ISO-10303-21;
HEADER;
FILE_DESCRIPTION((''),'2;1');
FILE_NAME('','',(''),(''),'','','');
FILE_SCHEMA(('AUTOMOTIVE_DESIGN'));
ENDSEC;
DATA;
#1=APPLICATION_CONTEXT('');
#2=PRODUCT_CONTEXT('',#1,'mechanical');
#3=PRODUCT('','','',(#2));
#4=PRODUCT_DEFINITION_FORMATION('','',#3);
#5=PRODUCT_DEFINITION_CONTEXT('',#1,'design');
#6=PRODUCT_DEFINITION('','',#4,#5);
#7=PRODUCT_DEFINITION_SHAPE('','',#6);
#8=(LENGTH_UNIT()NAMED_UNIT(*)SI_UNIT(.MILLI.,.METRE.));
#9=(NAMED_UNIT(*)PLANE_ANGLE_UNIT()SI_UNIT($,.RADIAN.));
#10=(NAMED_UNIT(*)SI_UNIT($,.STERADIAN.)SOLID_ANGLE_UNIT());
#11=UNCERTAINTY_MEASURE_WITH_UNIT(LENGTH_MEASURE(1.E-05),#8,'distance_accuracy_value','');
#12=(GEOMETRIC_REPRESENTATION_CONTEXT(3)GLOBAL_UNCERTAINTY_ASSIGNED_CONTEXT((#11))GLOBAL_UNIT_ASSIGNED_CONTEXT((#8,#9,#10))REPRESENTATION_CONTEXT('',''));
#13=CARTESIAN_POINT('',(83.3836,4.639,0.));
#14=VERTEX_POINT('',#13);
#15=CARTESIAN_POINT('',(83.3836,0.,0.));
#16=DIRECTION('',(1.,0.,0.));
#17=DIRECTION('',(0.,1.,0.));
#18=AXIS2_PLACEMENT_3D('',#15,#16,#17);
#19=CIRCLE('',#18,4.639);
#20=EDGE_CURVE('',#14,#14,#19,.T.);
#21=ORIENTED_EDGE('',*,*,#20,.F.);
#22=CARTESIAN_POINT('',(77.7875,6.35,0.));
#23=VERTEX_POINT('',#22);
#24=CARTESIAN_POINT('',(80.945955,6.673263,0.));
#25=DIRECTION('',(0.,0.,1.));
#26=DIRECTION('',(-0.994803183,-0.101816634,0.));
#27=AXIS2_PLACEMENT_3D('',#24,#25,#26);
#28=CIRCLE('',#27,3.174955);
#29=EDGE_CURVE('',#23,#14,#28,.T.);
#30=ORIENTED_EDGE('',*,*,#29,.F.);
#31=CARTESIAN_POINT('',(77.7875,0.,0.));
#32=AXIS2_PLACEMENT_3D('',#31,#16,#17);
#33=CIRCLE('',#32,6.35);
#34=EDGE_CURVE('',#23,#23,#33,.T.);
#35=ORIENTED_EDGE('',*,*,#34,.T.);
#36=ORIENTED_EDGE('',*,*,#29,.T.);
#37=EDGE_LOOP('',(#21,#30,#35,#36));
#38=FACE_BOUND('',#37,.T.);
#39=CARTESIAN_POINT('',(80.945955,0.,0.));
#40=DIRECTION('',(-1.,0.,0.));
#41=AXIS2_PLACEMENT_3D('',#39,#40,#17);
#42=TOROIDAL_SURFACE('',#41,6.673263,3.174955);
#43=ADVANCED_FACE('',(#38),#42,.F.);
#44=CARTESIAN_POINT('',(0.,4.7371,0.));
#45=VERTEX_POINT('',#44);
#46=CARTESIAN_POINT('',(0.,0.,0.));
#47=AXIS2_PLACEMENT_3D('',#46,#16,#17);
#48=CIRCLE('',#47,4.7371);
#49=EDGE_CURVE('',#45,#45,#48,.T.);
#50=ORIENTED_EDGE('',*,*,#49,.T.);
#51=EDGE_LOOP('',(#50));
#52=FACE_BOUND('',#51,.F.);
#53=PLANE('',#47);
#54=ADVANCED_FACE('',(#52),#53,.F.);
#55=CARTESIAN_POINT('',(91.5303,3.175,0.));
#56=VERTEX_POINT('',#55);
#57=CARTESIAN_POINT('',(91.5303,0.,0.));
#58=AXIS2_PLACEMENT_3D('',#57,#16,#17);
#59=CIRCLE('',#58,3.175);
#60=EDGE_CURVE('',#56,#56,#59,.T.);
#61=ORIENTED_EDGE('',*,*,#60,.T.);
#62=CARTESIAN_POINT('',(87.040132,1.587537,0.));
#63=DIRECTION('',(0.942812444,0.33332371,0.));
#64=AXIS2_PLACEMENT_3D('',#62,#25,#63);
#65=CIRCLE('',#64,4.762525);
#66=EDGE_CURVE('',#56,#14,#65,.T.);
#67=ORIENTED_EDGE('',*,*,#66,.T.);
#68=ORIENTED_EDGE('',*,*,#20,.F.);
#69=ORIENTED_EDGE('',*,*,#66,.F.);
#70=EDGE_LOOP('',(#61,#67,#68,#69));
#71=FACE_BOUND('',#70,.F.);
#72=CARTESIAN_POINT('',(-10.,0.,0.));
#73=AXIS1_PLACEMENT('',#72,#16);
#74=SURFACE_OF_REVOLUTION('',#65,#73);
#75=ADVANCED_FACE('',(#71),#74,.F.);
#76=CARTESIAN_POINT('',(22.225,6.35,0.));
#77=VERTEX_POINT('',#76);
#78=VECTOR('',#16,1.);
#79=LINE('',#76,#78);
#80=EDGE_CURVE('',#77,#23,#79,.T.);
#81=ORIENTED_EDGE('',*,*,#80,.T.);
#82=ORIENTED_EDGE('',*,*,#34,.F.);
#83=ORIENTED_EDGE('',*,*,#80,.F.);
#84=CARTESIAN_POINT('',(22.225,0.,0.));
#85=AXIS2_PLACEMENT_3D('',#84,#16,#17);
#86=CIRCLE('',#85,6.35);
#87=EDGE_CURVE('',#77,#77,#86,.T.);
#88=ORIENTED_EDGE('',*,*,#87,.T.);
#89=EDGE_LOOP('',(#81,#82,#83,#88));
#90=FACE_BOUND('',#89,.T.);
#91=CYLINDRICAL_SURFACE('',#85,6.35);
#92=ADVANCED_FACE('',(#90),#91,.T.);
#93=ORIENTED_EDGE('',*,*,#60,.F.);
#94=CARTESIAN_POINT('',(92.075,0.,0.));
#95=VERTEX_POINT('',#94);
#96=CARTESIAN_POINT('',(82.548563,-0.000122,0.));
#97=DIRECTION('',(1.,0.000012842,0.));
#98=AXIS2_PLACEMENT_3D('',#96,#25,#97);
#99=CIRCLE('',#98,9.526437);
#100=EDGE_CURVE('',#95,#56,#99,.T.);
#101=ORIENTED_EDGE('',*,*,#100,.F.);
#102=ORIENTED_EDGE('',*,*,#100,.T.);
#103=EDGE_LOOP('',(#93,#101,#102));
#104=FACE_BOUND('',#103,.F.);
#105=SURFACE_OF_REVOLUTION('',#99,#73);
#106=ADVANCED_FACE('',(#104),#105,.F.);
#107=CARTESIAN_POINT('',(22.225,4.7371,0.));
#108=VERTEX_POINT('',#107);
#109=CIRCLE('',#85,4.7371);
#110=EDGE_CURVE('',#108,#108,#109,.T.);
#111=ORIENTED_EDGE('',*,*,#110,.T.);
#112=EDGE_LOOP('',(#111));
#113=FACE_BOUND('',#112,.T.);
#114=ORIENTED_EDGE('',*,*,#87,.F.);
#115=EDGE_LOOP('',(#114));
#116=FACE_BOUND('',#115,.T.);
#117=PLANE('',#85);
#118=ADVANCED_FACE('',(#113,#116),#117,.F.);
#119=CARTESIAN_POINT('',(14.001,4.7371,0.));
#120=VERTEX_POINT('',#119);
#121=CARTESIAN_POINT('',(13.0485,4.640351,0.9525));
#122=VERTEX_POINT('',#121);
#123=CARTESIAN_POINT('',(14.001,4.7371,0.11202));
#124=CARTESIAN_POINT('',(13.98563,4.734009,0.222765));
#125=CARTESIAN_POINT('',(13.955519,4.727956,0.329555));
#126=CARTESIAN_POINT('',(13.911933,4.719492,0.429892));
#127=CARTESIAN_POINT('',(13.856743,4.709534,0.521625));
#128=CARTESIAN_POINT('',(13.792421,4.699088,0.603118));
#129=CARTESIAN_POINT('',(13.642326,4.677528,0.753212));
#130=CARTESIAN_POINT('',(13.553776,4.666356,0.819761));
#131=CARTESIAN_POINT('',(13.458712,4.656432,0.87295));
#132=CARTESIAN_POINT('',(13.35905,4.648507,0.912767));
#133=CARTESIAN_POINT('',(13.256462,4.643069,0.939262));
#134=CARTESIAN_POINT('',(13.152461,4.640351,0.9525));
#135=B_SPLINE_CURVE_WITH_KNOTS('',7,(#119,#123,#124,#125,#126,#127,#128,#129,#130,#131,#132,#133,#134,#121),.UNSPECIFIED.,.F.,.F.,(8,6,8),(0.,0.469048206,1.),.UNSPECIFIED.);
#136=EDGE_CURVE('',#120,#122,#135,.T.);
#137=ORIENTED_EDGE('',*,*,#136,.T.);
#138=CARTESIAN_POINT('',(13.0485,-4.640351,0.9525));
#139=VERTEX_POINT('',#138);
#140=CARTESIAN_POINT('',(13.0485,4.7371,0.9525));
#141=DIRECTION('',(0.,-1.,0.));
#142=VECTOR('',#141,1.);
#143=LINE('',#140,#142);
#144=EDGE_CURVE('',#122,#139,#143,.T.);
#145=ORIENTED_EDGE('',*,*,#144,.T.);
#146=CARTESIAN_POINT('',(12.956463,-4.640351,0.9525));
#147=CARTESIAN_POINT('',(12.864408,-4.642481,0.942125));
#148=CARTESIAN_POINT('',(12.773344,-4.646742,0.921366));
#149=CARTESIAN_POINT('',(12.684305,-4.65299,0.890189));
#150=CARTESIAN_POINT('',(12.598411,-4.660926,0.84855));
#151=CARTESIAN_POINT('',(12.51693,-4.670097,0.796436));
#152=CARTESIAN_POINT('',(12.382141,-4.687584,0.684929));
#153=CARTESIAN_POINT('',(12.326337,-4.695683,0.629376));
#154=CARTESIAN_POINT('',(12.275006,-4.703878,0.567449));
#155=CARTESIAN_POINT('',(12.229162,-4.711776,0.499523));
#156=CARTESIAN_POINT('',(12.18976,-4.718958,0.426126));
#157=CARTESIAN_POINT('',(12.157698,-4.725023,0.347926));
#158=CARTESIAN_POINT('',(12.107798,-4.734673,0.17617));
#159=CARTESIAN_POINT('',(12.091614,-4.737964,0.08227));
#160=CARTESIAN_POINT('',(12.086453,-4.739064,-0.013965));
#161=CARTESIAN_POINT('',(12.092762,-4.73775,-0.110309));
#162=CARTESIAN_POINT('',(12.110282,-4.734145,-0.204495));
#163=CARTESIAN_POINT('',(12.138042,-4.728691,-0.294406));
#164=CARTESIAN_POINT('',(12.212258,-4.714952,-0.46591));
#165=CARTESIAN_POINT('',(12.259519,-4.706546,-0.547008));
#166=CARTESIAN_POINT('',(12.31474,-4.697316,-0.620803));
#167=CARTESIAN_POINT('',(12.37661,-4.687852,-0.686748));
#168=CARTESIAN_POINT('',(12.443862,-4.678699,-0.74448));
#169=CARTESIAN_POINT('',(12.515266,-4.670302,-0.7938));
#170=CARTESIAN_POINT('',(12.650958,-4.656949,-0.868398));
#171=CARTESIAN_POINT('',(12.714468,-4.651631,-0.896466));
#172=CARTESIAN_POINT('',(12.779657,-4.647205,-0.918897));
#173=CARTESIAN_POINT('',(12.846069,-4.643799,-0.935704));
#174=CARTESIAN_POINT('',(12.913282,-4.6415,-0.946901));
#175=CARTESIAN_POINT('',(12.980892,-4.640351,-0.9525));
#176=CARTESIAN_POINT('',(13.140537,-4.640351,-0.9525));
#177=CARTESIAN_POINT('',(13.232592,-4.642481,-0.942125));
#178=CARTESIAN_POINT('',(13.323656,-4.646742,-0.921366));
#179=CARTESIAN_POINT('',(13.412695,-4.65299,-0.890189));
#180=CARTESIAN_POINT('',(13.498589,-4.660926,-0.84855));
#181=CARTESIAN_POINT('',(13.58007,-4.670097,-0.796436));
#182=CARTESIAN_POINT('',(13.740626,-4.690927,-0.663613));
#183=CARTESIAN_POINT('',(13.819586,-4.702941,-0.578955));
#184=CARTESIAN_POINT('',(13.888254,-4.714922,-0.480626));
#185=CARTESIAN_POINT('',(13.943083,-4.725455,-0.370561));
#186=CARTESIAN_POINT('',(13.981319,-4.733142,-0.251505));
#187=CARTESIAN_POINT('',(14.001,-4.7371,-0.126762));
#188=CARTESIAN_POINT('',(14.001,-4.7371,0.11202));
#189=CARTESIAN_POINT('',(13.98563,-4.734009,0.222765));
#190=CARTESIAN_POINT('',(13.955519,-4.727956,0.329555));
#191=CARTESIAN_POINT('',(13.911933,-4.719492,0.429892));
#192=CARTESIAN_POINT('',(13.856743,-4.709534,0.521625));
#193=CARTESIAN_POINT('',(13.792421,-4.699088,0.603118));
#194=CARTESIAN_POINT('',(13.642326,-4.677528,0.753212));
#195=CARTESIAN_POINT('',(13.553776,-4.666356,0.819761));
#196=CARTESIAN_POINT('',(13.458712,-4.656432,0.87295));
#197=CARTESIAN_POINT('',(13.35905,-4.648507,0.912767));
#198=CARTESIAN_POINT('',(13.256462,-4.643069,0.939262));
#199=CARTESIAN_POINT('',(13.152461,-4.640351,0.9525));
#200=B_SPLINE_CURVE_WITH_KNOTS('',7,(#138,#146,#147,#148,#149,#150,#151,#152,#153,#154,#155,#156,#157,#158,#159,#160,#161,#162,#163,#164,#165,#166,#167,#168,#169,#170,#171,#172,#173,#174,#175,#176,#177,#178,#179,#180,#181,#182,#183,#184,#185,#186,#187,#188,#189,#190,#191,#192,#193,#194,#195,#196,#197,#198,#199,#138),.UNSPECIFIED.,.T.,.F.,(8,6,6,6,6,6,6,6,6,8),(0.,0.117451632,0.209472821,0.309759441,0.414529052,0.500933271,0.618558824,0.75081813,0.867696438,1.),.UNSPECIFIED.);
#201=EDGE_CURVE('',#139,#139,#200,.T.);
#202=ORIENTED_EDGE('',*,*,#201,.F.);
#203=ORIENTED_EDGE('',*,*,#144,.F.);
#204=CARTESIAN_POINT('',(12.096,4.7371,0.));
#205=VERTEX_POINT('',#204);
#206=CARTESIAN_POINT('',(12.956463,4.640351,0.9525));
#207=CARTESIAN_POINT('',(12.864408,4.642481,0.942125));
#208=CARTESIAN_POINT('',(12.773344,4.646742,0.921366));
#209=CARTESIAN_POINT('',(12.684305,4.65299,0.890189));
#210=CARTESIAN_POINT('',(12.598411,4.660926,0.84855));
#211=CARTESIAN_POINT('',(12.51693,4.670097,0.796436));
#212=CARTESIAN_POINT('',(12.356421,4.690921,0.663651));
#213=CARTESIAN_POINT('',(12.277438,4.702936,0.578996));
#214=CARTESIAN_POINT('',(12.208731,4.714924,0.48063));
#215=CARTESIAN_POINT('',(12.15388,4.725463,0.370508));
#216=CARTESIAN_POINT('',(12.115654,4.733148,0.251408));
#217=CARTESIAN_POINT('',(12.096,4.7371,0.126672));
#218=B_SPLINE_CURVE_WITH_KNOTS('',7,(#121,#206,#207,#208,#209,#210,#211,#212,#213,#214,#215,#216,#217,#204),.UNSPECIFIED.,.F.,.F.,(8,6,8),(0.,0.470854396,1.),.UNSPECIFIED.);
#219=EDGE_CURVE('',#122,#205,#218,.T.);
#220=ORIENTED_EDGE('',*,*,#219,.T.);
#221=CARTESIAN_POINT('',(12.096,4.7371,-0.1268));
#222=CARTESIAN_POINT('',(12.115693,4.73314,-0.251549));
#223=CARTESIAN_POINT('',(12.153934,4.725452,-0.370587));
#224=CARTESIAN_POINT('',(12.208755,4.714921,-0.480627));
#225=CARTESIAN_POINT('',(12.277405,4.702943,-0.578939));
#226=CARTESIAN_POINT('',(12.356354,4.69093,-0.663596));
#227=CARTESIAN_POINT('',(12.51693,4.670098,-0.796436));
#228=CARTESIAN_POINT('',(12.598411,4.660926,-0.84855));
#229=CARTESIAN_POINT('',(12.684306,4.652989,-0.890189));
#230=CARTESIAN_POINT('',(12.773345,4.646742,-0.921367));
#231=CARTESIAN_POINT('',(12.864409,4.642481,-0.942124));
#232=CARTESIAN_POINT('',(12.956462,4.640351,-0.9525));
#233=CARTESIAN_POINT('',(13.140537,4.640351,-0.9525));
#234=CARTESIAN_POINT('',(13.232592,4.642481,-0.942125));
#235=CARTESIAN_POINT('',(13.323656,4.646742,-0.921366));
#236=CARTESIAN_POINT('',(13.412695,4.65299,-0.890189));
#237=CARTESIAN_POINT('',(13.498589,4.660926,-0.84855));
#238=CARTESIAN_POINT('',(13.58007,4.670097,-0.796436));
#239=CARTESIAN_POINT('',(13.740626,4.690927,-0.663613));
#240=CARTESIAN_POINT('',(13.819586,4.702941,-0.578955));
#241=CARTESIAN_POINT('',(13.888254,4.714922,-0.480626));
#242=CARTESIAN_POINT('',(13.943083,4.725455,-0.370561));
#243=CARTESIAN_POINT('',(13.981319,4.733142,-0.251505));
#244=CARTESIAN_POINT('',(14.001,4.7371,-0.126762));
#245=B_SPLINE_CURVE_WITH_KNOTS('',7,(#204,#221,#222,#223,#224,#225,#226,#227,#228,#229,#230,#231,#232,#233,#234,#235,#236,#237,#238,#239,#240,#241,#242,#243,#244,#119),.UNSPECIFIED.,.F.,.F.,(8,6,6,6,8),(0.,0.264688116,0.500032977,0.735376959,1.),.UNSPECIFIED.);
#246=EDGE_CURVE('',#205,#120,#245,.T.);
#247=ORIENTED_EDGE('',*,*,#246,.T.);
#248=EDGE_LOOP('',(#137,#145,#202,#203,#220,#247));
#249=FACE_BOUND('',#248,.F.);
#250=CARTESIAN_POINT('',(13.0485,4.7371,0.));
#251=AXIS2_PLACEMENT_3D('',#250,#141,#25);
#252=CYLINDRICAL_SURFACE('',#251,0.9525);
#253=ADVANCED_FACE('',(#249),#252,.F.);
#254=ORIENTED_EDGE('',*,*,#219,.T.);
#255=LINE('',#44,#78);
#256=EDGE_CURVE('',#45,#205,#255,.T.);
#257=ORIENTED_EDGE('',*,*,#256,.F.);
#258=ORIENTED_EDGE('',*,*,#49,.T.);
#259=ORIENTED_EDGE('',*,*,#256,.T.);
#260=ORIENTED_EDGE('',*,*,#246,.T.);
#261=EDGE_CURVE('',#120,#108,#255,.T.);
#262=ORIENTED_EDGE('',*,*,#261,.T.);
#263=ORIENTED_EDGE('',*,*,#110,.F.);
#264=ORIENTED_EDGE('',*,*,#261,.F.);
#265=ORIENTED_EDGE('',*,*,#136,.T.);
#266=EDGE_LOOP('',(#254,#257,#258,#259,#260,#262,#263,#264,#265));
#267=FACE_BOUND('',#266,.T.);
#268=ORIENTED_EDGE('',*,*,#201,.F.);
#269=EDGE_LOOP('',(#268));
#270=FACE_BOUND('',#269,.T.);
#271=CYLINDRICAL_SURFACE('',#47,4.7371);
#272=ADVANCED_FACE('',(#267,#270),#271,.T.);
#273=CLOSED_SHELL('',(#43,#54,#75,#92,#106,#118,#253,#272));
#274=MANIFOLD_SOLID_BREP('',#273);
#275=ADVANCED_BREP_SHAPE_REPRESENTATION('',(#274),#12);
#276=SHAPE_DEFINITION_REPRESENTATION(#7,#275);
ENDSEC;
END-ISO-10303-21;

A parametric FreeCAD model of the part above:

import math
import FreeCAD as App
import Part
import Sketcher
Q = App.Units.Quantity

doc = App.newDocument("Part")
body = doc.addObject("PartDesign::Body", "Body")

sketch1 = body.newObject("Sketcher::SketchObject", "Sketch")
sketch1.AttachmentSupport = (doc.getObject("XY_Plane"), [""])
sketch1.MapMode = "FlatFace"
sketch1.addGeometry([
    Part.LineSegment(App.Vector(22.2, 4.7, 0), App.Vector(0, 4.7, 0)),
    Part.LineSegment(App.Vector(0, 4.7, 0), App.Vector(0, 0, 0)),
    Part.LineSegment(App.Vector(0, 0, 0), App.Vector(92.1, 0, 0)),
    Part.ArcOfCircle(Part.Circle(App.Vector(82.5, 0, 0), App.Vector(0, 0, 1), 9.5), math.radians(0), math.radians(19.47)),
    Part.ArcOfCircle(Part.Circle(App.Vector(87, 1.6, 0), App.Vector(0, 0, 1), 4.8), math.radians(19), math.radians(140)),
    Part.ArcOfCircle(Part.Circle(App.Vector(80.9, 6.7, 0), App.Vector(0, 0, 1), 3.2), math.radians(-174), math.radians(-40)),
    Part.LineSegment(App.Vector(77.8, 6.3, 0), App.Vector(22.2, 6.3, 0)),
    Part.LineSegment(App.Vector(22.2, 6.3, 0), App.Vector(22.2, 4.7, 0)),
], False)
sketch1.addConstraint([
    Sketcher.Constraint("Coincident", 0, 2, 1, 1),
    Sketcher.Constraint("Coincident", 1, 2, 2, 1),
    Sketcher.Constraint("Coincident", 2, 2, 3, 1),
    Sketcher.Constraint("Tangent", 3, 2, 4, 1),
    Sketcher.Constraint("Tangent", 4, 2, 5, 2),
    Sketcher.Constraint("Coincident", 5, 1, 6, 1),
    Sketcher.Constraint("Coincident", 6, 2, 7, 1),
    Sketcher.Constraint("Coincident", 7, 2, 0, 1),
    Sketcher.Constraint("Horizontal", 0),
    Sketcher.Constraint("Vertical", 1),
    Sketcher.Constraint("Horizontal", 2),
    Sketcher.Constraint("Horizontal", 6),
    Sketcher.Constraint("Vertical", 7),
    Sketcher.Constraint("Coincident", 1, 2, -1, 1),
    Sketcher.Constraint("PointOnObject", 3, 3, -1),
    Sketcher.Constraint("Radius", 4, Q("0.1875 in")),
    Sketcher.Constraint("Radius", 5, Q("0.125 in")),
    Sketcher.Constraint("DistanceX", 0, 2, 0, 1, Q("0.875 in")),
    Sketcher.Constraint("DistanceX", 2, 1, 2, 2, Q("3.625 in")),
    Sketcher.Constraint("DistanceX", 6, 2, 6, 1, Q("2.1875 in")),
    Sketcher.Constraint("DistanceY", -1, 1, 3, 2, Q("0.125 in")),
    Sketcher.Constraint("DistanceY", 4, 3, 5, 1, Q("0.1875 in")),
    Sketcher.Constraint("DistanceY", 3, 2, 5, 1, Q("0.125 in")),
    Sketcher.Constraint("DistanceY", 1, 2, 1, 1, Q("0.1865 in")),
])
revolution = body.newObject("PartDesign::Revolution", "Revolution")
revolution.Profile = sketch1
revolution.ReferenceAxis = (sketch1, ["H_Axis"])
revolution.Angle = 360

sketch2 = body.newObject("Sketcher::SketchObject", "Sketch001")
sketch2.AttachmentSupport = (doc.getObject("XZ_Plane"), [""])
sketch2.MapMode = "FlatFace"
sketch2.AttachmentOffset = App.Placement(App.Vector(0, 0, -0.1865 * 25.4), App.Rotation())
sketch2.addGeometry(Part.Circle(App.Vector(13, 0, 0), App.Vector(0, 0, 1), 1), False)
sketch2.addConstraint([
    Sketcher.Constraint("PointOnObject", 0, 3, -1),
    Sketcher.Constraint("Diameter", 0, Q("0.075 in")),
    Sketcher.Constraint("DistanceX", -1, 1, 0, 3, Q("13.0485 mm")),
])
doc.recompute()
hole = body.newObject("PartDesign::Hole", "Hole")
hole.Profile = sketch2
hole.ThreadType = "None"
hole.Diameter = Q("0.075 in")
hole.DepthType = "ThroughAll"
hole.Reversed = True

doc.recompute()
